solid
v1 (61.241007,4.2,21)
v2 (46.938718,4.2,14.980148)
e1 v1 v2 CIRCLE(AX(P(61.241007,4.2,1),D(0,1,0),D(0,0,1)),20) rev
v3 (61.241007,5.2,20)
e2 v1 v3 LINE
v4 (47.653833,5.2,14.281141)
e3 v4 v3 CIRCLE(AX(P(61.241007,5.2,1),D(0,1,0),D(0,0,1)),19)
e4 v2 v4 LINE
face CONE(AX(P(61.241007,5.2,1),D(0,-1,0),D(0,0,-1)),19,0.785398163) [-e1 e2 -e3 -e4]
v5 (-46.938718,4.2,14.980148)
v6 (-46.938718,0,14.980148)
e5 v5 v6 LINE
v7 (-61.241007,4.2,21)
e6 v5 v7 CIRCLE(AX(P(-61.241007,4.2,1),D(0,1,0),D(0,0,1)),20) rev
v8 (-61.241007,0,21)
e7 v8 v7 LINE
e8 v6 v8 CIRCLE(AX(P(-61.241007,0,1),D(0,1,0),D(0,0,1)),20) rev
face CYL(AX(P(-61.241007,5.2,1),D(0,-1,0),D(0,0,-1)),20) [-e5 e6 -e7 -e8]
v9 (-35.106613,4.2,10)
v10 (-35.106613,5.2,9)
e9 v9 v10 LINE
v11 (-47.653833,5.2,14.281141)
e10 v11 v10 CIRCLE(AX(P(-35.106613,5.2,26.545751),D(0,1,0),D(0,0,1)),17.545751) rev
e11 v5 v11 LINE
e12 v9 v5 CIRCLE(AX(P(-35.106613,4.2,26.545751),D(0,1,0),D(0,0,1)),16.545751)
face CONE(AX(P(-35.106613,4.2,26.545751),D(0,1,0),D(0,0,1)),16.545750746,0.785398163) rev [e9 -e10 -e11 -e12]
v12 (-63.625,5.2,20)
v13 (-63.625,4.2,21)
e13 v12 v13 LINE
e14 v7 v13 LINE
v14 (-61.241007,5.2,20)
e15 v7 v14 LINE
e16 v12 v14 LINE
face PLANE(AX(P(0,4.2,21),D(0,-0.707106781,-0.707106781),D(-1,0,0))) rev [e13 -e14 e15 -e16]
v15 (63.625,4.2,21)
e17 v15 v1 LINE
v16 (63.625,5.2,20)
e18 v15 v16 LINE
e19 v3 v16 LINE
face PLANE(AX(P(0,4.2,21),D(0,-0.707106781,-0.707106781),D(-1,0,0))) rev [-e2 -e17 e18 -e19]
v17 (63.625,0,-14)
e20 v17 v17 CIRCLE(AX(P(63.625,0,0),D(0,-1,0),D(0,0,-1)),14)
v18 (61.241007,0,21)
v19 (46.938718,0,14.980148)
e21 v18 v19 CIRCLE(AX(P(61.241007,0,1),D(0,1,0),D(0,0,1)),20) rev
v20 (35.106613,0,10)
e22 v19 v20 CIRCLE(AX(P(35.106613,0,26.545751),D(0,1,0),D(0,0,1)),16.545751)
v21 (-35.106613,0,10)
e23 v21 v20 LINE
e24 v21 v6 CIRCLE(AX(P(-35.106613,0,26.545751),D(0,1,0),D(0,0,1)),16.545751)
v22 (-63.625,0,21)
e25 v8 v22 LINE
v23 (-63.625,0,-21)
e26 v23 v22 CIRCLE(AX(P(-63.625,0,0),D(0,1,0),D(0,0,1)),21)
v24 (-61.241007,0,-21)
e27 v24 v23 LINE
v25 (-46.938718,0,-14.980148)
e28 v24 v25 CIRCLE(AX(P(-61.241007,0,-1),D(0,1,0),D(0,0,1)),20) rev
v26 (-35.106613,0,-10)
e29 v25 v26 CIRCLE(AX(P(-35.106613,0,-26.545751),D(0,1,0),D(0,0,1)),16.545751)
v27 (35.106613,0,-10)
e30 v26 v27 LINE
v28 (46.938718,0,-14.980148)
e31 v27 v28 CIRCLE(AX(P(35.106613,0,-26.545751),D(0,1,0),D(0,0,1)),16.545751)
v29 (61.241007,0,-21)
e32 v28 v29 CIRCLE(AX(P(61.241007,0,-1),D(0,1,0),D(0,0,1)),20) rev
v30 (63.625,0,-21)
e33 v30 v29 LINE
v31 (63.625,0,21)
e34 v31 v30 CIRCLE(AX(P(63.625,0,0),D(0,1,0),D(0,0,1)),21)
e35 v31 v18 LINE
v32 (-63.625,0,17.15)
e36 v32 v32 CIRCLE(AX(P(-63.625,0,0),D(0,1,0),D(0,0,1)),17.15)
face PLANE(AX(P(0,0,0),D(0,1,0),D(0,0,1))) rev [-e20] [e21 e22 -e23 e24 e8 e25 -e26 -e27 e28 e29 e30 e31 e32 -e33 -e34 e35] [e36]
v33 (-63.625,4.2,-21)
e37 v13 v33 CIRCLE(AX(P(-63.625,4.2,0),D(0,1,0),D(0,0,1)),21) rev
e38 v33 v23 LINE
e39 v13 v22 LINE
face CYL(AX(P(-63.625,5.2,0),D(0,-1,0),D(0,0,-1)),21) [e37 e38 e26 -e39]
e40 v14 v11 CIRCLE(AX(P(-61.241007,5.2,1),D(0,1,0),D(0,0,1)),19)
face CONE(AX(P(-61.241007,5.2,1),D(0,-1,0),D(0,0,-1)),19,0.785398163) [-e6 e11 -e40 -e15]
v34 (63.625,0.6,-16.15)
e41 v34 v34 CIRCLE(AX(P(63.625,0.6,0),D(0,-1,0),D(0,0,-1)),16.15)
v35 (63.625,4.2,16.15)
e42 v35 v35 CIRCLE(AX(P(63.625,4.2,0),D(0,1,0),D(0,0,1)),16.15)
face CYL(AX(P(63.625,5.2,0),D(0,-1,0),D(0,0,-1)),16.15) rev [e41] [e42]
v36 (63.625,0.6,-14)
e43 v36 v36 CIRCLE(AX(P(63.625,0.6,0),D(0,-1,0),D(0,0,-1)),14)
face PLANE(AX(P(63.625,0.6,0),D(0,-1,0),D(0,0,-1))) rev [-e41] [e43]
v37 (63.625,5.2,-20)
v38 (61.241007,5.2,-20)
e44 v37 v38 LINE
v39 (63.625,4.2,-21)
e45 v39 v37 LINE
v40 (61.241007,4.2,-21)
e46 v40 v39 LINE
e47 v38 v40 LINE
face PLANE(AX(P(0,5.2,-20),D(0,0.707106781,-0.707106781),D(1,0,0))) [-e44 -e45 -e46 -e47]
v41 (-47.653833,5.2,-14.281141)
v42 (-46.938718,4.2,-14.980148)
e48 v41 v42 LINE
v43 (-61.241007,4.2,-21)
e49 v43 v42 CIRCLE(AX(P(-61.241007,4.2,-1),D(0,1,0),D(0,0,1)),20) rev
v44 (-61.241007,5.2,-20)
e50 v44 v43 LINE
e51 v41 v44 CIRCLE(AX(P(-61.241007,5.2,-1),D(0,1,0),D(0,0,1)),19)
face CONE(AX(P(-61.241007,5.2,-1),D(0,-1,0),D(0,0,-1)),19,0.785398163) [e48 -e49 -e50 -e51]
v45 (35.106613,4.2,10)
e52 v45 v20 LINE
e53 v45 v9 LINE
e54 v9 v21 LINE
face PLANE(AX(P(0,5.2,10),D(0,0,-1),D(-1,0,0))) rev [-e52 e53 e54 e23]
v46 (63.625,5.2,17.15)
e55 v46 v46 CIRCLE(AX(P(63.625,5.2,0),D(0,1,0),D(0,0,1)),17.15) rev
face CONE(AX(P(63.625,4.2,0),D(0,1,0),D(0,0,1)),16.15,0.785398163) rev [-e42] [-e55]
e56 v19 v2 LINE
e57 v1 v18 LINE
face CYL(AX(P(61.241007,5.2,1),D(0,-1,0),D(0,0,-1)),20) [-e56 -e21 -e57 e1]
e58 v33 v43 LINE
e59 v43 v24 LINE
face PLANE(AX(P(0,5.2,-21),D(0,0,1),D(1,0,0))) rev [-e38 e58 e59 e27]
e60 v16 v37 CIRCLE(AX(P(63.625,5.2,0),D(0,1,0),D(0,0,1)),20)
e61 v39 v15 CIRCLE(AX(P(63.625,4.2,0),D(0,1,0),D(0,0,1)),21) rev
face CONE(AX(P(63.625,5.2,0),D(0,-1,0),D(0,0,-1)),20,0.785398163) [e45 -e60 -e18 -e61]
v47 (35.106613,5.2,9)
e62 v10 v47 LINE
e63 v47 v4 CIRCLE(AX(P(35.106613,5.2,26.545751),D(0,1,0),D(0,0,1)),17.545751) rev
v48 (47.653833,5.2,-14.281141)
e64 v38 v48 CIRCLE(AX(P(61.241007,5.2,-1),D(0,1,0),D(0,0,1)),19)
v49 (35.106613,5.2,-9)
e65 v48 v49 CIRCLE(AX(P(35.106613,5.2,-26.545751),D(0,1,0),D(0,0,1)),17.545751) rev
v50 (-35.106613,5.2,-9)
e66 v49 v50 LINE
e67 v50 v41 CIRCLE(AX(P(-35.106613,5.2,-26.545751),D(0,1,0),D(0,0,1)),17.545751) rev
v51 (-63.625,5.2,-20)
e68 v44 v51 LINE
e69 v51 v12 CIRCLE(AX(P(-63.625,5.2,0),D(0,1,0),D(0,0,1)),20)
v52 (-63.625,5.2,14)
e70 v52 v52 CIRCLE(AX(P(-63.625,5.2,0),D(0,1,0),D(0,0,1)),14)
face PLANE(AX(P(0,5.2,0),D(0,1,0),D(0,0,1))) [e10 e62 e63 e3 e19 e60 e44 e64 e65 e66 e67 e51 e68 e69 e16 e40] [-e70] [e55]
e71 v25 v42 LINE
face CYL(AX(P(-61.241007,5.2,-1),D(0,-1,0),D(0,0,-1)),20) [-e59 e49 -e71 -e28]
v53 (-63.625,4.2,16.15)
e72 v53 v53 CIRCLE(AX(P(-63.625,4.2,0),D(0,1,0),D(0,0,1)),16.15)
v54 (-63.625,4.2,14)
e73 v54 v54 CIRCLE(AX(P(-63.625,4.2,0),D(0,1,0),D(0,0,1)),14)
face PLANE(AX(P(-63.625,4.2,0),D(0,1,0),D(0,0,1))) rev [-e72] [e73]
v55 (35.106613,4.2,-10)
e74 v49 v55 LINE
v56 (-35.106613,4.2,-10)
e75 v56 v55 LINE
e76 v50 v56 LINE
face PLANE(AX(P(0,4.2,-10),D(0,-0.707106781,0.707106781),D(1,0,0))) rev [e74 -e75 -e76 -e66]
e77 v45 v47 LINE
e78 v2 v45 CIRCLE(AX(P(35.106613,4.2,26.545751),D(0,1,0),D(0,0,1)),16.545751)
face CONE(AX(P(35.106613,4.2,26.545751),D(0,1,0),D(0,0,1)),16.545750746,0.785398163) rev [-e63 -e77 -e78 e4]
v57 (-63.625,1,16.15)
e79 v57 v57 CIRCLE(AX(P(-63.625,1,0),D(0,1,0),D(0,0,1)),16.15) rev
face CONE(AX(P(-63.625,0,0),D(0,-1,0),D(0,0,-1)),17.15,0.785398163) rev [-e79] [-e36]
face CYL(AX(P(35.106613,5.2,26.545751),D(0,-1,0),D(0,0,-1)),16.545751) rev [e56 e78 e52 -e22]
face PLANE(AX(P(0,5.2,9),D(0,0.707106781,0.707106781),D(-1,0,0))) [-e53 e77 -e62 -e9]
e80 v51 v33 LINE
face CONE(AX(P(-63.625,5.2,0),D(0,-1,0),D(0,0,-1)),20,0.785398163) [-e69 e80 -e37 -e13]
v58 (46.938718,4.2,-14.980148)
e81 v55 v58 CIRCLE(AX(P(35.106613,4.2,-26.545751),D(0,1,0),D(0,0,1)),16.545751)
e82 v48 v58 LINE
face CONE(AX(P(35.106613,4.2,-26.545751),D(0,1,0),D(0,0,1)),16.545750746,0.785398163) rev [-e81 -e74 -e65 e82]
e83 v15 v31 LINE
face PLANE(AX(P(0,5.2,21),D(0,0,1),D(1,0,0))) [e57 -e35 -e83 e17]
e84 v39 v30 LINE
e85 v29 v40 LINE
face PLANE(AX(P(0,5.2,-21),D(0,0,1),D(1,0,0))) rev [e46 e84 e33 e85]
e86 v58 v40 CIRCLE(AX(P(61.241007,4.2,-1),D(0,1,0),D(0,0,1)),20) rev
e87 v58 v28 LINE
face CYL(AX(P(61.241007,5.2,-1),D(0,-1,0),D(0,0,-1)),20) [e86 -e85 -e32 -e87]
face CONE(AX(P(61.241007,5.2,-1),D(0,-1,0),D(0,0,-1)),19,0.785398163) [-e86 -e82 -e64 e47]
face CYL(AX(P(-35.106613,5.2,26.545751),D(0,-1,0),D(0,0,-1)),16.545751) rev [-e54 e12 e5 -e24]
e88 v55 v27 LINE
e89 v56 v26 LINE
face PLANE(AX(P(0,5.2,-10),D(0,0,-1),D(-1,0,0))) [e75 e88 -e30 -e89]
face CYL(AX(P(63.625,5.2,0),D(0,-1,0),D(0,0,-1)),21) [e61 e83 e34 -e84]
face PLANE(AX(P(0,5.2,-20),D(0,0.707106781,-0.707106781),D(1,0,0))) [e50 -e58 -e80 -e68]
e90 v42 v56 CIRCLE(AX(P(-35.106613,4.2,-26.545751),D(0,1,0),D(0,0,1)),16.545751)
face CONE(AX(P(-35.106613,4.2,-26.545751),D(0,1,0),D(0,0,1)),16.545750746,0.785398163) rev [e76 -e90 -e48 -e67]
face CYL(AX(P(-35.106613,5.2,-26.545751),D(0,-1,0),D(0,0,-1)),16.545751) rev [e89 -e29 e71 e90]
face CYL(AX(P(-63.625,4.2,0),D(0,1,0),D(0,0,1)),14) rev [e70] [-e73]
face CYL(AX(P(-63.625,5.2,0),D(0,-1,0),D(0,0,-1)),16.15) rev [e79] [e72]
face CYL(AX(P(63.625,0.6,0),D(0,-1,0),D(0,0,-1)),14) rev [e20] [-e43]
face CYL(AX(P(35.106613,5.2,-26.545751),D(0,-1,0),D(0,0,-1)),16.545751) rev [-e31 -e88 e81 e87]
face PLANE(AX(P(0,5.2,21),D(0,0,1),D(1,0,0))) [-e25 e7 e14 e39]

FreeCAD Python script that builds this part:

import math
import FreeCAD as App
import Part
import Sketcher
from FreeCAD import Vector
Q = App.Units.Quantity


def edges_at(feature, points):
    """Names of the edges that pass closest to the given points."""
    edges = feature.Shape.Edges
    near = lambda p: min(range(len(edges)), key=lambda i: edges[i].distToShape(Part.Vertex(*p))[0])
    return sorted({f"Edge{near(p) + 1}" for p in points})

doc = App.newDocument("Part")
params = doc.addObject("Spreadsheet::Sheet", "Params")
for row, (alias, value) in enumerate([
    ("sketch1_radius", "21 mm"),
    ("sketch1_diameter", "32.3 mm"),
    ("pad1_length", "5.2 mm"),
    ("fillet_radius", "20 mm"),
    ("chamfer_size", "1 mm"),
    ("sketch2_diameter", "28 mm"),
    ("pad2_length", "0.6 mm"),
    ("sketch3_diameter", "28 mm"),
    ("pad3_length", "1 mm"),
    ("chamfer2_size", "1 mm"),
], start=1):
    params.set(f"A{row}", alias)
    params.set(f"B{row}", "=" + value)
    params.setAlias(f"B{row}", alias)

body = doc.addObject("PartDesign::Body", "Body")

# Sketch on XZ plane
sketch1 = body.newObject("Sketcher::SketchObject", "Sketch")
sketch1.AttachmentSupport = (doc.getObject("XZ_Plane"), [""])
sketch1.MapMode = "FlatFace"
sketch1.addGeometry([
    Part.LineSegment(Vector(51, 21, 0), Vector(64, 21, 0)),  # 0
    Part.ArcOfCircle(Part.Circle(Vector(64, 0, 0), Vector(0, 0, 1), 21), math.radians(-90), math.radians(90)),  # 1
    Part.LineSegment(Vector(64, -21, 0), Vector(51, -21, 0)),  # 2
    Part.ArcOfCircle(Part.Circle(Vector(35, -27, 0), Vector(0, 0, 1), 17), math.radians(20), math.radians(90)),  # 3
    Part.LineSegment(Vector(35, -10, 0), Vector(-35, -10, 0)),  # 4
    Part.ArcOfCircle(Part.Circle(Vector(-35, -27, 0), Vector(0, 0, 1), 17), math.radians(90), math.radians(160)),  # 5
    Part.LineSegment(Vector(-51, -21, 0), Vector(-64, -21, 0)),  # 6
    Part.ArcOfCircle(Part.Circle(Vector(-64, 0, 0), Vector(0, 0, 1), 21), math.radians(90), math.radians(270)),  # 7
    Part.LineSegment(Vector(-64, 21, 0), Vector(-51, 21, 0)),  # 8
    Part.ArcOfCircle(Part.Circle(Vector(-35, 27, 0), Vector(0, 0, 1), 17), math.radians(-160), math.radians(-90)),  # 9
    Part.LineSegment(Vector(-35, 10, 0), Vector(35, 10, 0)),  # 10
    Part.ArcOfCircle(Part.Circle(Vector(35, 27, 0), Vector(0, 0, 1), 17), math.radians(-90), math.radians(-20)),  # 11
    Part.Circle(Vector(-64, 0, 0), Vector(0, 0, 1), 16),  # 12
    Part.Circle(Vector(64, 0, 0), Vector(0, 0, 1), 16),  # 13
], False)
sketch1.addConstraint([
    Sketcher.Constraint("Tangent", 0, 2, 1, 2),
    Sketcher.Constraint("Tangent", 1, 1, 2, 1),
    Sketcher.Constraint("Coincident", 2, 2, 3, 1),
    Sketcher.Constraint("Tangent", 3, 2, 4, 1),
    Sketcher.Constraint("Tangent", 4, 2, 5, 1),
    Sketcher.Constraint("Coincident", 5, 2, 6, 1),
    Sketcher.Constraint("Tangent", 6, 2, 7, 2),
    Sketcher.Constraint("Tangent", 7, 1, 8, 1),
    Sketcher.Constraint("Coincident", 8, 2, 9, 1),
    Sketcher.Constraint("Tangent", 9, 2, 10, 1),
    Sketcher.Constraint("Tangent", 10, 2, 11, 1),
    Sketcher.Constraint("Coincident", 11, 2, 0, 1),
    Sketcher.Constraint("Horizontal", 0),
    Sketcher.Constraint("Horizontal", 2),
    Sketcher.Constraint("Horizontal", 4),
    Sketcher.Constraint("Horizontal", 6),
    Sketcher.Constraint("Horizontal", 8),
    Sketcher.Constraint("Horizontal", 10),
    Sketcher.Constraint("Coincident", 12, 3, 7, 3),
    Sketcher.Constraint("Coincident", 13, 3, 1, 3),
    Sketcher.Constraint("Equal", 3, 5),
    Sketcher.Constraint("Equal", 1, 7),
    Sketcher.Constraint("Equal", 5, 9),
    Sketcher.Constraint("Equal", 9, 11),
    Sketcher.Constraint("Equal", 12, 13),
    Sketcher.Constraint("Symmetric", 1, 3, 7, 3, -1, 1),
    Sketcher.Constraint("Symmetric", 3, 3, 9, 3, -1, 1),
    Sketcher.Constraint("Symmetric", 2, 2, 5, 2, -2),
    Sketcher.Constraint("Vertical", 3, 3, 11, 3),
    Sketcher.Constraint("Radius", 1, Q("21 mm")),
    Sketcher.Constraint("Diameter", 12, Q("32.3 mm")),
    Sketcher.Constraint("DistanceY", 3, 2, -1, 1, Q("10 mm")),
    Sketcher.Constraint("Radius", 3, Q("16.545751 mm")),
    Sketcher.Constraint("DistanceX", 7, 3, 1, 3, Q("127.25 mm")),
    Sketcher.Constraint("DistanceX", 0, 1, 0, 2, Q("12.92972 mm")),
])
sketch1.setExpression("Constraints[29]", "Params.sketch1_radius")
sketch1.setExpression("Constraints[30]", "Params.sketch1_diameter")
pad1 = body.newObject("PartDesign::Pad", "Pad")
pad1.Profile = sketch1
pad1.setExpression("Length", "Params.pad1_length")
pad1.Reversed = True
doc.recompute()

fillet = body.newObject("PartDesign::Fillet", "Fillet")
fillet.Base = (pad1, edges_at(pad1, [
    (-50.695, 2.6, 21),
    (-50.695, 2.6, -21),
    (50.695, 2.6, -21),
    (50.695, 2.6, 21),
]))
fillet.setExpression("Radius", "Params.fillet_radius")
doc.recompute()

chamfer = body.newObject("PartDesign::Chamfer", "Chamfer")
chamfer.Base = (fillet, edges_at(fillet, [
    (62.433, 5.2, 21),
    (84.625, 5.2, 0),
    (62.433, 5.2, -21),
    (41.525, 5.2, -11.296),
    (0, 5.2, -10),
    (41.525, 5.2, 11.296),
    (-41.525, 5.2, -11.296),
    (-62.433, 5.2, -21),
    (-62.433, 5.2, 21),
    (-53.482, 5.2, 19.434),
    (-53.482, 5.2, -19.434),
    (-84.625, 5.2, 0),
    (53.482, 5.2, -19.434),
    (53.482, 5.2, 19.434),
    (-41.525, 5.2, 11.296),
    (0, 5.2, 10),
    (47.475, 5.2, 0),
]))
chamfer.setExpression("Size", "Params.chamfer_size")

# Sketch on XZ plane
sketch2 = body.newObject("Sketcher::SketchObject", "Sketch001")
sketch2.AttachmentSupport = (doc.getObject("XZ_Plane"), [""])
sketch2.MapMode = "FlatFace"
sketch2.addGeometry([
    Part.Circle(Vector(64, 0, 0), Vector(0, 0, 1), 19),
    Part.Circle(Vector(64, 0, 0), Vector(0, 0, 1), 14),
], False)
sketch2.addConstraint([
    Sketcher.Constraint("Coincident", 1, 3, 0, 3),
    Sketcher.Constraint("PointOnObject", 0, 3, -1),
    Sketcher.Constraint("Diameter", 1, Q("28 mm")),
    Sketcher.Constraint("Diameter", 0, Q("38.050485 mm")),
    Sketcher.Constraint("DistanceX", -1, 1, 0, 3, Q("63.625 mm")),
])
sketch2.setExpression("Constraints[2]", "Params.sketch2_diameter")
pad2 = body.newObject("PartDesign::Pad", "Pad001")
pad2.Profile = sketch2
pad2.setExpression("Length", "Params.pad2_length")
pad2.Reversed = True

# Sketch on XZ plane
sketch3 = body.newObject("Sketcher::SketchObject", "Sketch002")
sketch3.AttachmentSupport = (doc.getObject("XZ_Plane"), [""])
sketch3.MapMode = "FlatFace"
sketch3.AttachmentOffset = App.Placement(Vector(0, 0, -5.2), App.Rotation())
sketch3.addGeometry([
    Part.Circle(Vector(-64, 0, 0), Vector(0, 0, 1), 19),
    Part.Circle(Vector(-64, 0, 0), Vector(0, 0, 1), 14),
], False)
sketch3.addConstraint([
    Sketcher.Constraint("Coincident", 1, 3, 0, 3),
    Sketcher.Constraint("PointOnObject", 0, 3, -1),
    Sketcher.Constraint("Diameter", 1, Q("28 mm")),
    Sketcher.Constraint("Diameter", 0, Q("37.430581 mm")),
    Sketcher.Constraint("DistanceX", 0, 3, -1, 1, Q("63.625 mm")),
])
sketch3.setExpression("Constraints[2]", "Params.sketch3_diameter")
pad3 = body.newObject("PartDesign::Pad", "Pad002")
pad3.Profile = sketch3
pad3.setExpression("Length", "Params.pad3_length")
doc.recompute()

chamfer2 = body.newObject("PartDesign::Chamfer", "Chamfer001")
chamfer2.Base = (pad3, edges_at(pad3, [(-79.775, 0, 0)]))
chamfer2.setExpression("Size", "Params.chamfer2_size")

doc.recompute()
